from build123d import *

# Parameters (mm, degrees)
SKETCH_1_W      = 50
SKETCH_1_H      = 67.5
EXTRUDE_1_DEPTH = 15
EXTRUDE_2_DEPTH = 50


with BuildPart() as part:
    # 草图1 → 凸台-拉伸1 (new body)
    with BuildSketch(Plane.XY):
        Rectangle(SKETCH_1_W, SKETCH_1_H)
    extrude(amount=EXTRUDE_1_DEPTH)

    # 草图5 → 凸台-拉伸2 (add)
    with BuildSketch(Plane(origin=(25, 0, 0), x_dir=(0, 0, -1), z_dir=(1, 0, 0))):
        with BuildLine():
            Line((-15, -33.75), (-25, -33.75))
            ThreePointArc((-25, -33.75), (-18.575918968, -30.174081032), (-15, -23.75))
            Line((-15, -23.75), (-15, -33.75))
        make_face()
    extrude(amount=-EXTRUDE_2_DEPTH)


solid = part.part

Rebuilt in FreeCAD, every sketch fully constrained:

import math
import FreeCAD as App
import Part
import Sketcher
from FreeCAD import Vector
Q = App.Units.Quantity

doc = App.newDocument("Part")
body = doc.addObject("PartDesign::Body", "Body")

# Sketch on XY plane
sketch1 = body.newObject("Sketcher::SketchObject", "Sketch")
sketch1.AttachmentSupport = (doc.getObject("XY_Plane"), [""])
sketch1.MapMode = "FlatFace"
sketch1.addGeometry([
    Part.LineSegment(Vector(-25, 34, 0), Vector(-25, -34, 0)),
    Part.LineSegment(Vector(-25, -34, 0), Vector(25, -34, 0)),
    Part.LineSegment(Vector(25, -34, 0), Vector(25, 34, 0)),
    Part.LineSegment(Vector(25, 34, 0), Vector(-25, 34, 0)),
], False)
sketch1.addConstraint([
    Sketcher.Constraint("Coincident", 0, 2, 1, 1),
    Sketcher.Constraint("Coincident", 1, 2, 2, 1),
    Sketcher.Constraint("Coincident", 2, 2, 3, 1),
    Sketcher.Constraint("Coincident", 3, 2, 0, 1),
    Sketcher.Constraint("Vertical", 0),
    Sketcher.Constraint("Horizontal", 1),
    Sketcher.Constraint("Vertical", 2),
    Sketcher.Constraint("Horizontal", 3),
    Sketcher.Constraint("Symmetric", 0, 2, 2, 2, -1, 1),
    Sketcher.Constraint("DistanceX", 1, 1, 1, 2, Q("50 mm")),
    Sketcher.Constraint("DistanceY", 0, 2, 0, 1, Q("67.5 mm")),
])
pad1 = body.newObject("PartDesign::Pad", "Pad")
pad1.Profile = sketch1
pad1.Length = 15

# Sketch on YZ plane
sketch2 = body.newObject("Sketcher::SketchObject", "Sketch001")
sketch2.AttachmentSupport = (doc.getObject("YZ_Plane"), [""])
sketch2.MapMode = "FlatFace"
sketch2.AttachmentOffset = App.Placement(Vector(0, 0, 25), App.Rotation())
sketch2.addGeometry([
    Part.LineSegment(Vector(-34, 25, 0), Vector(-34, 15, 0)),
    Part.LineSegment(Vector(-34, 15, 0), Vector(-24, 15, 0)),
    Part.ArcOfCircle(Part.Circle(Vector(-21, 28, 0), Vector(0, 0, 1), 13), math.radians(-167), math.radians(-103)),
], False)
sketch2.addConstraint([
    Sketcher.Constraint("Coincident", 0, 2, 1, 1),
    Sketcher.Constraint("Coincident", 1, 2, 2, 2),
    Sketcher.Constraint("Coincident", 2, 1, 0, 1),
    Sketcher.Constraint("Vertical", 0),
    Sketcher.Constraint("Horizontal", 1),
    Sketcher.Constraint("Equal", 1, 0),
    Sketcher.Constraint("DistanceX", 1, 1, 1, 2, Q("10 mm")),
    Sketcher.Constraint("DistanceY", -1, 1, 0, 2, Q("15 mm")),
    Sketcher.Constraint("DistanceX", 0, 2, -1, 1, Q("33.75 mm")),
    Sketcher.Constraint("Radius", 2, Q("13.420365 mm")),
])
pad2 = body.newObject("PartDesign::Pad", "Pad001")
pad2.Profile = sketch2
pad2.Length = 50
pad2.Reversed = True

doc.recompute()
